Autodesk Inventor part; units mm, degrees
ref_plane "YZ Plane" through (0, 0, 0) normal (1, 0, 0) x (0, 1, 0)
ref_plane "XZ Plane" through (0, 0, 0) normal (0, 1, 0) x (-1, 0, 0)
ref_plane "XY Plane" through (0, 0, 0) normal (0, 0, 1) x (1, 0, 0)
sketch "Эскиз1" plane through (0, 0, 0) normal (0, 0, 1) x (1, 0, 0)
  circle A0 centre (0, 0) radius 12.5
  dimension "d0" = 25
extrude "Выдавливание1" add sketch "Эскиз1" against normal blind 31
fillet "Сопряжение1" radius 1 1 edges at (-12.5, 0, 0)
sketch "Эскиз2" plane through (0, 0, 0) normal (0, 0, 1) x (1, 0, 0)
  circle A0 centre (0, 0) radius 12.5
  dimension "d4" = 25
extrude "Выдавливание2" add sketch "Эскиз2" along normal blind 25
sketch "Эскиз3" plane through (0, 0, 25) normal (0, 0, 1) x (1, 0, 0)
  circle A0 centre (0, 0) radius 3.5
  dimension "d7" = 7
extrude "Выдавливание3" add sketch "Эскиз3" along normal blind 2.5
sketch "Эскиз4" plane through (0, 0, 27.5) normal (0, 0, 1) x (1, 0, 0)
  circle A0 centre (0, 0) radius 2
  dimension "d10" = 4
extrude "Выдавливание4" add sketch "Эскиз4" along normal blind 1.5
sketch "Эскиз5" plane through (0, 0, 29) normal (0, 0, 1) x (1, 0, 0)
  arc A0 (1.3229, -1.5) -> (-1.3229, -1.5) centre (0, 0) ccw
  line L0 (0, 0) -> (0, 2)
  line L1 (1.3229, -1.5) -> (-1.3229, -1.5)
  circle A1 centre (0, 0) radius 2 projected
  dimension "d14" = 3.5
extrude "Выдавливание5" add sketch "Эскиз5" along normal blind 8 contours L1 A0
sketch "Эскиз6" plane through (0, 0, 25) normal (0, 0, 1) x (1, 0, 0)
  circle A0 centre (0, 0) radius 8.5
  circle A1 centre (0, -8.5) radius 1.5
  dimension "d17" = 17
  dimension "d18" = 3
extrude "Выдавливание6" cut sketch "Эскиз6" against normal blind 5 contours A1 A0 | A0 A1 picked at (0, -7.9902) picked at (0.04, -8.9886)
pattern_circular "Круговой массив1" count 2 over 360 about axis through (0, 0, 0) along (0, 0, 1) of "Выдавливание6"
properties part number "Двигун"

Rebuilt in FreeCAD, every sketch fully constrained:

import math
import FreeCAD as App
import Part
import Sketcher
from FreeCAD import Vector


def edges_at(feature, points):
    """Names of the edges that pass closest to the given points."""
    edges = feature.Shape.Edges
    near = lambda p: min(range(len(edges)), key=lambda i: edges[i].distToShape(Part.Vertex(*p))[0])
    return sorted({f"Edge{near(p) + 1}" for p in points})

doc = App.newDocument("Part")
params = doc.addObject("Spreadsheet::Sheet", "Params")
for row, (alias, value) in enumerate([
    ("sketch1_diameter", "25 mm"),
    ("pad1_length", "31 mm"),
    ("fillet_radius", "1 mm"),
    ("sketch2_diameter", "25 mm"),
    ("pad2_length", "25 mm"),
    ("sketch3_diameter", "7 mm"),
    ("pad3_length", "2.5 mm"),
    ("sketch4_diameter", "4 mm"),
    ("pad4_length", "1.5 mm"),
    ("sketch5_radius", "2 mm"),
    ("pad5_length", "8 mm"),
    ("sketch6_diameter", "3 mm"),
    ("pocket1_length", "5 mm"),
], start=1):
    params.set(f"A{row}", alias)
    params.set(f"B{row}", "=" + value)
    params.setAlias(f"B{row}", alias)

body = doc.addObject("PartDesign::Body", "Body")

# Sketch on XY plane
sketch1 = doc.addObject("Sketcher::SketchObject", "Sketch")
body.addObject(sketch1)
sketch1.AttachmentSupport = (doc.XY_Plane, [""])
sketch1.MapMode = "FlatFace"
sketch1.addGeometry(Part.Circle(Vector(0, 0, 0), Vector(0, 0, 1), 12), False)
sketch1.addConstraint(Sketcher.Constraint("Coincident", 0, 3, -1, 1))
sketch1.addConstraint(Sketcher.Constraint("Diameter", 0, 25.0))
sketch1.setExpression("Constraints[1]", "Params.sketch1_diameter")
pad1 = doc.addObject("PartDesign::Pad", "Pad")
body.addObject(pad1)
pad1.Profile = sketch1
pad1.setExpression("Length", "Params.pad1_length")
pad1.Reversed = True
doc.recompute()

fillet = doc.addObject("PartDesign::Fillet", "Fillet")
body.addObject(fillet)
fillet.Base = (pad1, edges_at(pad1, [(-12.5, 0, 0)]))
fillet.setExpression("Radius", "Params.fillet_radius")

# Sketch on XY plane
sketch2 = doc.addObject("Sketcher::SketchObject", "Sketch001")
body.addObject(sketch2)
sketch2.AttachmentSupport = (doc.XY_Plane, [""])
sketch2.MapMode = "FlatFace"
sketch2.addGeometry(Part.Circle(Vector(0, 0, 0), Vector(0, 0, 1), 12), False)
sketch2.addConstraint(Sketcher.Constraint("Coincident", 0, 3, -1, 1))
sketch2.addConstraint(Sketcher.Constraint("Diameter", 0, 25.0))
sketch2.setExpression("Constraints[1]", "Params.sketch2_diameter")
pad2 = doc.addObject("PartDesign::Pad", "Pad001")
body.addObject(pad2)
pad2.Profile = sketch2
pad2.setExpression("Length", "Params.pad2_length")

# Sketch on XY plane
sketch3 = doc.addObject("Sketcher::SketchObject", "Sketch002")
body.addObject(sketch3)
sketch3.AttachmentSupport = (doc.XY_Plane, [""])
sketch3.MapMode = "FlatFace"
sketch3.AttachmentOffset = App.Placement(Vector(0, 0, 25), App.Rotation())
sketch3.addGeometry(Part.Circle(Vector(0, 0, 0), Vector(0, 0, 1), 3.5), False)
sketch3.addConstraint(Sketcher.Constraint("Coincident", 0, 3, -1, 1))
sketch3.addConstraint(Sketcher.Constraint("Diameter", 0, 7.0))
sketch3.setExpression("Constraints[1]", "Params.sketch3_diameter")
pad3 = doc.addObject("PartDesign::Pad", "Pad002")
body.addObject(pad3)
pad3.Profile = sketch3
pad3.setExpression("Length", "Params.pad3_length")

# Sketch on XY plane
sketch4 = doc.addObject("Sketcher::SketchObject", "Sketch003")
body.addObject(sketch4)
sketch4.AttachmentSupport = (doc.XY_Plane, [""])
sketch4.MapMode = "FlatFace"
sketch4.AttachmentOffset = App.Placement(Vector(0, 0, 27.5), App.Rotation())
sketch4.addGeometry(Part.Circle(Vector(0, 0, 0), Vector(0, 0, 1), 2), False)
sketch4.addConstraint(Sketcher.Constraint("Coincident", 0, 3, -1, 1))
sketch4.addConstraint(Sketcher.Constraint("Diameter", 0, 4.0))
sketch4.setExpression("Constraints[1]", "Params.sketch4_diameter")
pad4 = doc.addObject("PartDesign::Pad", "Pad003")
body.addObject(pad4)
pad4.Profile = sketch4
pad4.setExpression("Length", "Params.pad4_length")

# Sketch on XY plane
sketch5 = doc.addObject("Sketcher::SketchObject", "Sketch004")
body.addObject(sketch5)
sketch5.AttachmentSupport = (doc.XY_Plane, [""])
sketch5.MapMode = "FlatFace"
sketch5.AttachmentOffset = App.Placement(Vector(0, 0, 29), App.Rotation())
sketch5.addGeometry(Part.LineSegment(Vector(-1.3, -1.5, 0), Vector(1.3, -1.5, 0)), False)
sketch5.addGeometry(Part.ArcOfCircle(Part.Circle(Vector(0, 0, 0), Vector(0, 0, 1), 2), math.radians(-49), math.radians(229)), False)
sketch5.addConstraint(Sketcher.Constraint("Coincident", 0, 1, 1, 2))
sketch5.addConstraint(Sketcher.Constraint("Coincident", 1, 1, 0, 2))
sketch5.addConstraint(Sketcher.Constraint("Horizontal", 0))
sketch5.addConstraint(Sketcher.Constraint("Coincident", 1, 3, -1, 1))
sketch5.addConstraint(Sketcher.Constraint("Radius", 1, 2.0))
sketch5.addConstraint(Sketcher.Constraint("DistanceY", 0, 1, -1, 1, 1.5))
sketch5.setExpression("Constraints[4]", "Params.sketch5_radius")
pad5 = doc.addObject("PartDesign::Pad", "Pad004")
body.addObject(pad5)
pad5.Profile = sketch5
pad5.setExpression("Length", "Params.pad5_length")

# Sketch on XY plane
sketch6 = doc.addObject("Sketcher::SketchObject", "Sketch005")
body.addObject(sketch6)
sketch6.AttachmentSupport = (doc.XY_Plane, [""])
sketch6.MapMode = "FlatFace"
sketch6.AttachmentOffset = App.Placement(Vector(0, 0, 25), App.Rotation())
sketch6.addGeometry(Part.Circle(Vector(0, -8.5, 0), Vector(0, 0, 1), 1.5), False)
sketch6.addConstraint(Sketcher.Constraint("PointOnObject", 0, 3, -2))
sketch6.addConstraint(Sketcher.Constraint("Diameter", 0, 3.0))
sketch6.addConstraint(Sketcher.Constraint("DistanceY", 0, 3, -1, 1, 8.5))
sketch6.setExpression("Constraints[1]", "Params.sketch6_diameter")
pocket1 = doc.addObject("PartDesign::Pocket", "Pocket")
body.addObject(pocket1)
pocket1.Profile = sketch6
pocket1.setExpression("Length", "Params.pocket1_length")
doc.recompute()

polarpattern = doc.addObject("PartDesign::PolarPattern", "PolarPattern")
body.addObject(polarpattern)
polarpattern.Originals = [pocket1]
polarpattern.Axis = (doc.Z_Axis, [""])
polarpattern.Angle = 360
polarpattern.Occurrences = 2
body.Tip = polarpattern

doc.recompute()
